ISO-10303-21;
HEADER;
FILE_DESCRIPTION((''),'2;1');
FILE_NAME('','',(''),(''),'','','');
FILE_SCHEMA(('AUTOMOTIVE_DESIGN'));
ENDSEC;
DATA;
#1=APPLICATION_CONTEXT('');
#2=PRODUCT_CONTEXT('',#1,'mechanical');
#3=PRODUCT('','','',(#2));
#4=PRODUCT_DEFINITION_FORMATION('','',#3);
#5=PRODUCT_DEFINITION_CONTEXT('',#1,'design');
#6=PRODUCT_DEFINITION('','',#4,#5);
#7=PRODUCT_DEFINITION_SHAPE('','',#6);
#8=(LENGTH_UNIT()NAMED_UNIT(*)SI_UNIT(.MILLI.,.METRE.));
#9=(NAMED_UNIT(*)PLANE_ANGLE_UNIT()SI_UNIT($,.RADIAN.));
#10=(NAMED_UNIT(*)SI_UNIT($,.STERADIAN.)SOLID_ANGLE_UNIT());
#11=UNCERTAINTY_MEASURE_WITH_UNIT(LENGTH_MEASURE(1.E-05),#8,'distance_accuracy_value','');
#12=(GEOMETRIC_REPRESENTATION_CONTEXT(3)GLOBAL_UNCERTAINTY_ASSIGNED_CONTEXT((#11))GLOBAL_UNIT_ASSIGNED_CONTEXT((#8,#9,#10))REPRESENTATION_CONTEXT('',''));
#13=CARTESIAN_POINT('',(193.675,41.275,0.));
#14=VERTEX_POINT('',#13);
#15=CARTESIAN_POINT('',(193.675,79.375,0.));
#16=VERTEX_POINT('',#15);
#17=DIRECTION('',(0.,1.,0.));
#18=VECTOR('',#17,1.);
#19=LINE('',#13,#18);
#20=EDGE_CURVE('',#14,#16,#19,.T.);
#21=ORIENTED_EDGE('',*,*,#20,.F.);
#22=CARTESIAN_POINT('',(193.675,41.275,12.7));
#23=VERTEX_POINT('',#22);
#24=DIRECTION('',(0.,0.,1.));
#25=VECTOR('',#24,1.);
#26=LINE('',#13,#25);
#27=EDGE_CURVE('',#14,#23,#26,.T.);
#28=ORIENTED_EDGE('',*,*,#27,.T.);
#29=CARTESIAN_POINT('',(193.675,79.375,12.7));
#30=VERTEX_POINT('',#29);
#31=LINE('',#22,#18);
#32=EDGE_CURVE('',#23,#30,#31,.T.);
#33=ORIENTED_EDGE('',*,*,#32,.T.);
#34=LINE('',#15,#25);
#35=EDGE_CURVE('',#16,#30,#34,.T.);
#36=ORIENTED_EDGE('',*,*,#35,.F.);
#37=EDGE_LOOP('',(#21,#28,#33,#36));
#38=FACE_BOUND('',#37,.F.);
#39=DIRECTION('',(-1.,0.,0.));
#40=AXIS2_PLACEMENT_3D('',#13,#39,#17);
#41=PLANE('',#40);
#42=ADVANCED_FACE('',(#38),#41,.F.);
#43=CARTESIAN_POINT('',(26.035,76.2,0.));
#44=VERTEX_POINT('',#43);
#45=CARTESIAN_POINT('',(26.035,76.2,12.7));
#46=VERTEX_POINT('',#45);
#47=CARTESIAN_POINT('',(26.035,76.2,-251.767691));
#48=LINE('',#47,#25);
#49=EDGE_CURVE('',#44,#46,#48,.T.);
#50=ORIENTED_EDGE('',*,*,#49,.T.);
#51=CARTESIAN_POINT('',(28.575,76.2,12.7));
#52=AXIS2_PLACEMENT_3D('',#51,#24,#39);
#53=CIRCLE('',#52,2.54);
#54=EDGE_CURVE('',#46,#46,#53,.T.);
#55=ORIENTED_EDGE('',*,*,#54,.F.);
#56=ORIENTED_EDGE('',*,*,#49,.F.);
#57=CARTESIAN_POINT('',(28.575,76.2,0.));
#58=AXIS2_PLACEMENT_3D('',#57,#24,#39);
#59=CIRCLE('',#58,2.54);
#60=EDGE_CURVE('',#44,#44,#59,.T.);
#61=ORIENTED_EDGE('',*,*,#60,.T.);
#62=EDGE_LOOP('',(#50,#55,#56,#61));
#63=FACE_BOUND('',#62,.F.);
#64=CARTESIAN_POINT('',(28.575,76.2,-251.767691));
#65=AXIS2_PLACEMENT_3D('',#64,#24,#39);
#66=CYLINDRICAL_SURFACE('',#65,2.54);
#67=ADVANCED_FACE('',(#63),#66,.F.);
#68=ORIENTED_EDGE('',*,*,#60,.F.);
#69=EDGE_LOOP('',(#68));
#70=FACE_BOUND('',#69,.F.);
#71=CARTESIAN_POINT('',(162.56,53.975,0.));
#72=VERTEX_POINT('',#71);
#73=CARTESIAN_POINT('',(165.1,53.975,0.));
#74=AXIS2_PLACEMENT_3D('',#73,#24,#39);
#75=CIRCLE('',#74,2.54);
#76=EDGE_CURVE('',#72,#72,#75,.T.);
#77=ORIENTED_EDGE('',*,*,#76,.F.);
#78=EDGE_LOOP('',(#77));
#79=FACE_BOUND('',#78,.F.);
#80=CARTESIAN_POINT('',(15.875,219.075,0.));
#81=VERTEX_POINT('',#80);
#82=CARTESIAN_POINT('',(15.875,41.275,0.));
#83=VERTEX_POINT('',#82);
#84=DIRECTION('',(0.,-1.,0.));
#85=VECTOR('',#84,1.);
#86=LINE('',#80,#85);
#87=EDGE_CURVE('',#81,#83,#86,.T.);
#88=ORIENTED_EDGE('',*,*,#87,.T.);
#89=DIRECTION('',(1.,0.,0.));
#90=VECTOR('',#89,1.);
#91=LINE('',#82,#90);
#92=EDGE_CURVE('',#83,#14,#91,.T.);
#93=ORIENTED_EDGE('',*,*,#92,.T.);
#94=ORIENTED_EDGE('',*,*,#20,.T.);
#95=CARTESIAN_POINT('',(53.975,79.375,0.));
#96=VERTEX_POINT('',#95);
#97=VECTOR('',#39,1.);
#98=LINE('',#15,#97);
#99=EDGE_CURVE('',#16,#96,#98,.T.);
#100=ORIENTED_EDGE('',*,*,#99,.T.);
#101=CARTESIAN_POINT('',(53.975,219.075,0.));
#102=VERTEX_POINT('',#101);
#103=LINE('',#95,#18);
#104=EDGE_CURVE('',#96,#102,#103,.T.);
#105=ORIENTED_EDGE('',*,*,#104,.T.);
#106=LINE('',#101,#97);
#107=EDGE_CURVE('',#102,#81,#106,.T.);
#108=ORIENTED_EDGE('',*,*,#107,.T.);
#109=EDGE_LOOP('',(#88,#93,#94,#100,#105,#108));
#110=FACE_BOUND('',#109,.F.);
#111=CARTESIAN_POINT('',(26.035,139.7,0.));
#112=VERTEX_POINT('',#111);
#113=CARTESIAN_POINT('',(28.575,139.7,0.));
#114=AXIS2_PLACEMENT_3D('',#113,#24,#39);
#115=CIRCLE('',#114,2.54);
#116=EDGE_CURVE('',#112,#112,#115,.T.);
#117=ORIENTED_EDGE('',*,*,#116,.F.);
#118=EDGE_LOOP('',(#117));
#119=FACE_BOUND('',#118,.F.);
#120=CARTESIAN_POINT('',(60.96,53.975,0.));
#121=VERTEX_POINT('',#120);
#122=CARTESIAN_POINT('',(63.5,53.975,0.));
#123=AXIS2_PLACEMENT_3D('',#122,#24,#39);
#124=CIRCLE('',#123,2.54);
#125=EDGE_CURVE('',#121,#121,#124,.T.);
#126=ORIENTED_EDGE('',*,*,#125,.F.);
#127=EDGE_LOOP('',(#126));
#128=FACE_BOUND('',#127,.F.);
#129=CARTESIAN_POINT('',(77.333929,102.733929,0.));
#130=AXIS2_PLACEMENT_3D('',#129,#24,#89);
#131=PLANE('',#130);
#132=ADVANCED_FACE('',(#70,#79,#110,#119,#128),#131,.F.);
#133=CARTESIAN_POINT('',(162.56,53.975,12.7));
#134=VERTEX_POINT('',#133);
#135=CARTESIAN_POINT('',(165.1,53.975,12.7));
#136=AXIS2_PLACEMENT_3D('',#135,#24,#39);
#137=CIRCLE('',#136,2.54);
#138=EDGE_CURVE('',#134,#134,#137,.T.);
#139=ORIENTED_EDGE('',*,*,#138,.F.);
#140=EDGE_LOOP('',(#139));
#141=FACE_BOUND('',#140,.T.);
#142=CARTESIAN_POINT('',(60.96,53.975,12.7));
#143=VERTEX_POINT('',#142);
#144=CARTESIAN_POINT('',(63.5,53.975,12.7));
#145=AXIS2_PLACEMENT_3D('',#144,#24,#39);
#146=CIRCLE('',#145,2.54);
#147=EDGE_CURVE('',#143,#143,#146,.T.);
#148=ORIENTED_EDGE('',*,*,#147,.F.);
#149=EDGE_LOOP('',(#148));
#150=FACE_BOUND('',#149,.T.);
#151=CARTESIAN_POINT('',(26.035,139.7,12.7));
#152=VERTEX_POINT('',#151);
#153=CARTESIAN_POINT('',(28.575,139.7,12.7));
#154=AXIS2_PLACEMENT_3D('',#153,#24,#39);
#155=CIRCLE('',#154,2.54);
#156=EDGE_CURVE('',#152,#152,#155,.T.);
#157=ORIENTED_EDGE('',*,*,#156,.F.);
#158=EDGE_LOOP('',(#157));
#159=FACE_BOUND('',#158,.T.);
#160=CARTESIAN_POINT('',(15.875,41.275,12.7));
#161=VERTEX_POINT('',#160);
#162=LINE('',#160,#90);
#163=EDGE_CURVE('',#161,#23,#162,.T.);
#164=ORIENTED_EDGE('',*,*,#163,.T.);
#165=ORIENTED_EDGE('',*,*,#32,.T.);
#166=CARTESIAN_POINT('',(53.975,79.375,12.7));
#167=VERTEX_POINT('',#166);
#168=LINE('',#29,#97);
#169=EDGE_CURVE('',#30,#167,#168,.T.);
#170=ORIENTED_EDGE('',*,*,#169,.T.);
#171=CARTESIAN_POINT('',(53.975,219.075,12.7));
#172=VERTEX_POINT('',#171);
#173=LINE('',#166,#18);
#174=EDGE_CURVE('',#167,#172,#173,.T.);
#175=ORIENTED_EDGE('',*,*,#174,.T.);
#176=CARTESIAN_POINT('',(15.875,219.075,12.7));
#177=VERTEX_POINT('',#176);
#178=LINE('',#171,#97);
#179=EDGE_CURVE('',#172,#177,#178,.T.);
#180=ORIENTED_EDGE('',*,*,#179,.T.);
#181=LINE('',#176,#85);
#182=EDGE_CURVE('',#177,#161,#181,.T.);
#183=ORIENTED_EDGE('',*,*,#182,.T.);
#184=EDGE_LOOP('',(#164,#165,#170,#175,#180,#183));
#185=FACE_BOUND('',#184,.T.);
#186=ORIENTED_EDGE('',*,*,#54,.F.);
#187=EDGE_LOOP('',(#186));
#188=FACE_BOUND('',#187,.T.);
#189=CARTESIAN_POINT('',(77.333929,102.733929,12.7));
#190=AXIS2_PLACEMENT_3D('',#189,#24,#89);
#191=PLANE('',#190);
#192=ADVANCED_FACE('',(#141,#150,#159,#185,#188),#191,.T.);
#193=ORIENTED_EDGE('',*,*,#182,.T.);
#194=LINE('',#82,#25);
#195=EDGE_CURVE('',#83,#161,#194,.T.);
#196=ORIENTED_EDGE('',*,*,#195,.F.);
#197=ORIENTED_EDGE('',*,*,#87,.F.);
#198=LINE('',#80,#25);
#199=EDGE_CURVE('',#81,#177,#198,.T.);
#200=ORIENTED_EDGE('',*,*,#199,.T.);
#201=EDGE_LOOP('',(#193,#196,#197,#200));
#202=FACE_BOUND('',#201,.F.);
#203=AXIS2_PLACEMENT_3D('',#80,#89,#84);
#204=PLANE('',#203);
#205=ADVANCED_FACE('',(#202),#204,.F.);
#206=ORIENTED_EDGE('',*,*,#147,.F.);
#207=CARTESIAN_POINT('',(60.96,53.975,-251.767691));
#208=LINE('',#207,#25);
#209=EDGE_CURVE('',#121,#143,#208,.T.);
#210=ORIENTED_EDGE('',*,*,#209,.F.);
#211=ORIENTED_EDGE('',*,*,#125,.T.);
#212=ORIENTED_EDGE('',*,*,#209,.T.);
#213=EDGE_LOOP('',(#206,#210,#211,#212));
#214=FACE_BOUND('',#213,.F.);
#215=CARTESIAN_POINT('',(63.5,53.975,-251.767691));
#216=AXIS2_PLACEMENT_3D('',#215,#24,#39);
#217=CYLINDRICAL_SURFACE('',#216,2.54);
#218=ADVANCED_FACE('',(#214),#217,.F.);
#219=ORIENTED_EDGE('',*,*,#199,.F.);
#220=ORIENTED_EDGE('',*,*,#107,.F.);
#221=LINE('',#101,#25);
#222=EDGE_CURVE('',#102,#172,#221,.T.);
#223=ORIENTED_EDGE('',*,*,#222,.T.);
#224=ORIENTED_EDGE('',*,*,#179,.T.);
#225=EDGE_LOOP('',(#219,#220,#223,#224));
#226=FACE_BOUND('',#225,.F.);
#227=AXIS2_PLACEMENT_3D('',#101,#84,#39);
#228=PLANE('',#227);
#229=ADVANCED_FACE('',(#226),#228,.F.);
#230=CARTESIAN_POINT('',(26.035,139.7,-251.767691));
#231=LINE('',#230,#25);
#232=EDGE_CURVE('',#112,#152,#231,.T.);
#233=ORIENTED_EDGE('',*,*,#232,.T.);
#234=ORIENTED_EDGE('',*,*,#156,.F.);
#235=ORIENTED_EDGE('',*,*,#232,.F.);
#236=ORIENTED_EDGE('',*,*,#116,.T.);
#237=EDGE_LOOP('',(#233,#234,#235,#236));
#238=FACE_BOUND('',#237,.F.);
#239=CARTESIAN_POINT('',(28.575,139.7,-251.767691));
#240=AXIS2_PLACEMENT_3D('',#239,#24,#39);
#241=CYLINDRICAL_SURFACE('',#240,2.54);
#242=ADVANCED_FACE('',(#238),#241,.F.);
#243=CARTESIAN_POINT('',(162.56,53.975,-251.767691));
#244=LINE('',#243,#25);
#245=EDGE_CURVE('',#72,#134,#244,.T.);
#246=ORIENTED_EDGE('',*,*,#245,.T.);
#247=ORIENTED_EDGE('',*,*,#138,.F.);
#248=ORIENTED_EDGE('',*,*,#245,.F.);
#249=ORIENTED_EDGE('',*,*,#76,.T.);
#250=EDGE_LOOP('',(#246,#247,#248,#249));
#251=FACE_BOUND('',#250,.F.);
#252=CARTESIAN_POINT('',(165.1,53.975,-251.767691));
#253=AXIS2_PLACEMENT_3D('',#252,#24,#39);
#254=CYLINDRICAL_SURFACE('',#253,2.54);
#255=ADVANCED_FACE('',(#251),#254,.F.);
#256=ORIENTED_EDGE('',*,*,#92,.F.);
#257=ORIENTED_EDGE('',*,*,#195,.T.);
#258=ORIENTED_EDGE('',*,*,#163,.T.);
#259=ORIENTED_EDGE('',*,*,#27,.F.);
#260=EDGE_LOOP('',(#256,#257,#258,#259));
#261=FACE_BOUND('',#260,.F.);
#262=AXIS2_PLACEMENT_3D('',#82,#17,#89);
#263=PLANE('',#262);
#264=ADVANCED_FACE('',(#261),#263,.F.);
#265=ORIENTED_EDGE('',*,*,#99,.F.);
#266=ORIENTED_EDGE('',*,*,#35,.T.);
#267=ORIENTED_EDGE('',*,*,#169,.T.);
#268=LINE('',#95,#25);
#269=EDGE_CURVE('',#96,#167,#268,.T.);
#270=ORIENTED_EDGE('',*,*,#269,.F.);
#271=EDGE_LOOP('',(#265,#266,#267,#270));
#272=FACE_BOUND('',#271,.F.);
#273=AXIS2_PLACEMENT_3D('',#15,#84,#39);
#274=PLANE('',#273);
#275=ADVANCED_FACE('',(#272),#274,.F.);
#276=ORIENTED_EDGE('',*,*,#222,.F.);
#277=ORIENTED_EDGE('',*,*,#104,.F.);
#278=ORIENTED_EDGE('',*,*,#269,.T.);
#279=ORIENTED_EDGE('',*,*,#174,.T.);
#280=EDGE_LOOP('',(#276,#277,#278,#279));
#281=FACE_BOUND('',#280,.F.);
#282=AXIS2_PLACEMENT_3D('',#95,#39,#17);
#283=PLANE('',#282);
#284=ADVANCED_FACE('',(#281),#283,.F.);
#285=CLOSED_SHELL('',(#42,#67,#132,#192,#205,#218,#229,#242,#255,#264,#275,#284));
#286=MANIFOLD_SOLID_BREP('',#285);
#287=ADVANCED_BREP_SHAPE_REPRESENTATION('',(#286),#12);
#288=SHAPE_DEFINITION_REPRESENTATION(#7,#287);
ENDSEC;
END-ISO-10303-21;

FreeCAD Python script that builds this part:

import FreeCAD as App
import Part
import Sketcher

V = App.Vector
Q = App.Units.Quantity


def add_polygon(sketch, points):
    """Adds a closed chain of lines whose ends are joined by coincident constraints."""
    first, n = sketch.GeometryCount, len(points)
    for a, b in zip(points, points[1:] + points[:1]):
        sketch.addGeometry(Part.LineSegment(App.Vector(*a, 0), App.Vector(*b, 0)), False)
    for i in range(n):
        sketch.addConstraint(Sketcher.Constraint("Coincident", first + i, 2, first + (i + 1) % n, 1))

doc = App.newDocument("Part")
body = doc.addObject("PartDesign::Body", "Body")

# Sketch on XY plane
sketch1 = doc.addObject("Sketcher::SketchObject", "Sketch")
body.addObject(sketch1)
sketch1.AttachmentSupport = (doc.XY_Plane, [""])
sketch1.MapMode = "FlatFace"
add_polygon(sketch1, [(193.675, 79.375), (53.975, 79.375), (53.975, 219.075), (15.875, 219.075), (15.875, 41.275), (193.675, 41.275)])  # lines 0-5
sketch1.addConstraint([
    Sketcher.Constraint("Horizontal", 0),
    Sketcher.Constraint("Vertical", 1),
    Sketcher.Constraint("Horizontal", 2),
    Sketcher.Constraint("Vertical", 3),
    Sketcher.Constraint("Horizontal", 4),
    Sketcher.Constraint("Vertical", 5),
    Sketcher.Constraint("Equal", 0, 1),
    Sketcher.Constraint("Equal", 4, 3),
    Sketcher.Constraint("DistanceX", 4, 1, 4, 2, Q("7 in")),
    Sketcher.Constraint("DistanceX", 0, 2, 0, 1, Q("5.5 in")),
    Sketcher.Constraint("DistanceX", -1, 1, 0, 2, Q("2.125 in")),
    Sketcher.Constraint("DistanceY", -1, 1, 0, 2, Q("3.125 in")),
])
pad1 = doc.addObject("PartDesign::Pad", "Pad")
body.addObject(pad1)
pad1.Profile = sketch1
pad1.Length = Q("0.5 in")

# Sketch on XY plane
sketch2 = doc.addObject("Sketcher::SketchObject", "Sketch001")
body.addObject(sketch2)
sketch2.AttachmentSupport = (doc.XY_Plane, [""])
sketch2.MapMode = "FlatFace"
sketch2.addGeometry([
    Part.Circle(V(28.575, 139.7, 0), V(0, 0, 1), 2.54),
    Part.Circle(V(28.575, 76.2, 0), V(0, 0, 1), 2.54),
    Part.Circle(V(63.5, 53.975, 0), V(0, 0, 1), 2.54),
    Part.Circle(V(165.1, 53.975, 0), V(0, 0, 1), 2.54),
], False)
sketch2.addConstraint([
    Sketcher.Constraint("Equal", 0, 1),
    Sketcher.Constraint("Equal", 1, 2),
    Sketcher.Constraint("Equal", 2, 3),
    Sketcher.Constraint("Horizontal", 2, 3, 3, 3),
    Sketcher.Constraint("Vertical", 0, 3, 1, 3),
    Sketcher.Constraint("Diameter", 0, Q("0.2 in")),
    Sketcher.Constraint("DistanceY", -1, 1, 1, 3, Q("3 in")),
    Sketcher.Constraint("DistanceX", 2, 3, 3, 3, Q("4 in")),
    Sketcher.Constraint("DistanceY", -1, 1, 0, 3, Q("5.5 in")),
    Sketcher.Constraint("DistanceX", -1, 1, 2, 3, Q("2.5 in")),
    Sketcher.Constraint("DistanceX", -1, 1, 0, 3, Q("1.125 in")),
    Sketcher.Constraint("DistanceY", -1, 1, 2, 3, Q("2.125 in")),
])
doc.recompute()
hole = doc.addObject("PartDesign::Hole", "Hole")
body.addObject(hole)
hole.Profile = sketch2
hole.ThreadType = "None"
hole.Diameter = Q("0.2 in")
hole.DepthType = "ThroughAll"
hole.Reversed = True

doc.recompute()
